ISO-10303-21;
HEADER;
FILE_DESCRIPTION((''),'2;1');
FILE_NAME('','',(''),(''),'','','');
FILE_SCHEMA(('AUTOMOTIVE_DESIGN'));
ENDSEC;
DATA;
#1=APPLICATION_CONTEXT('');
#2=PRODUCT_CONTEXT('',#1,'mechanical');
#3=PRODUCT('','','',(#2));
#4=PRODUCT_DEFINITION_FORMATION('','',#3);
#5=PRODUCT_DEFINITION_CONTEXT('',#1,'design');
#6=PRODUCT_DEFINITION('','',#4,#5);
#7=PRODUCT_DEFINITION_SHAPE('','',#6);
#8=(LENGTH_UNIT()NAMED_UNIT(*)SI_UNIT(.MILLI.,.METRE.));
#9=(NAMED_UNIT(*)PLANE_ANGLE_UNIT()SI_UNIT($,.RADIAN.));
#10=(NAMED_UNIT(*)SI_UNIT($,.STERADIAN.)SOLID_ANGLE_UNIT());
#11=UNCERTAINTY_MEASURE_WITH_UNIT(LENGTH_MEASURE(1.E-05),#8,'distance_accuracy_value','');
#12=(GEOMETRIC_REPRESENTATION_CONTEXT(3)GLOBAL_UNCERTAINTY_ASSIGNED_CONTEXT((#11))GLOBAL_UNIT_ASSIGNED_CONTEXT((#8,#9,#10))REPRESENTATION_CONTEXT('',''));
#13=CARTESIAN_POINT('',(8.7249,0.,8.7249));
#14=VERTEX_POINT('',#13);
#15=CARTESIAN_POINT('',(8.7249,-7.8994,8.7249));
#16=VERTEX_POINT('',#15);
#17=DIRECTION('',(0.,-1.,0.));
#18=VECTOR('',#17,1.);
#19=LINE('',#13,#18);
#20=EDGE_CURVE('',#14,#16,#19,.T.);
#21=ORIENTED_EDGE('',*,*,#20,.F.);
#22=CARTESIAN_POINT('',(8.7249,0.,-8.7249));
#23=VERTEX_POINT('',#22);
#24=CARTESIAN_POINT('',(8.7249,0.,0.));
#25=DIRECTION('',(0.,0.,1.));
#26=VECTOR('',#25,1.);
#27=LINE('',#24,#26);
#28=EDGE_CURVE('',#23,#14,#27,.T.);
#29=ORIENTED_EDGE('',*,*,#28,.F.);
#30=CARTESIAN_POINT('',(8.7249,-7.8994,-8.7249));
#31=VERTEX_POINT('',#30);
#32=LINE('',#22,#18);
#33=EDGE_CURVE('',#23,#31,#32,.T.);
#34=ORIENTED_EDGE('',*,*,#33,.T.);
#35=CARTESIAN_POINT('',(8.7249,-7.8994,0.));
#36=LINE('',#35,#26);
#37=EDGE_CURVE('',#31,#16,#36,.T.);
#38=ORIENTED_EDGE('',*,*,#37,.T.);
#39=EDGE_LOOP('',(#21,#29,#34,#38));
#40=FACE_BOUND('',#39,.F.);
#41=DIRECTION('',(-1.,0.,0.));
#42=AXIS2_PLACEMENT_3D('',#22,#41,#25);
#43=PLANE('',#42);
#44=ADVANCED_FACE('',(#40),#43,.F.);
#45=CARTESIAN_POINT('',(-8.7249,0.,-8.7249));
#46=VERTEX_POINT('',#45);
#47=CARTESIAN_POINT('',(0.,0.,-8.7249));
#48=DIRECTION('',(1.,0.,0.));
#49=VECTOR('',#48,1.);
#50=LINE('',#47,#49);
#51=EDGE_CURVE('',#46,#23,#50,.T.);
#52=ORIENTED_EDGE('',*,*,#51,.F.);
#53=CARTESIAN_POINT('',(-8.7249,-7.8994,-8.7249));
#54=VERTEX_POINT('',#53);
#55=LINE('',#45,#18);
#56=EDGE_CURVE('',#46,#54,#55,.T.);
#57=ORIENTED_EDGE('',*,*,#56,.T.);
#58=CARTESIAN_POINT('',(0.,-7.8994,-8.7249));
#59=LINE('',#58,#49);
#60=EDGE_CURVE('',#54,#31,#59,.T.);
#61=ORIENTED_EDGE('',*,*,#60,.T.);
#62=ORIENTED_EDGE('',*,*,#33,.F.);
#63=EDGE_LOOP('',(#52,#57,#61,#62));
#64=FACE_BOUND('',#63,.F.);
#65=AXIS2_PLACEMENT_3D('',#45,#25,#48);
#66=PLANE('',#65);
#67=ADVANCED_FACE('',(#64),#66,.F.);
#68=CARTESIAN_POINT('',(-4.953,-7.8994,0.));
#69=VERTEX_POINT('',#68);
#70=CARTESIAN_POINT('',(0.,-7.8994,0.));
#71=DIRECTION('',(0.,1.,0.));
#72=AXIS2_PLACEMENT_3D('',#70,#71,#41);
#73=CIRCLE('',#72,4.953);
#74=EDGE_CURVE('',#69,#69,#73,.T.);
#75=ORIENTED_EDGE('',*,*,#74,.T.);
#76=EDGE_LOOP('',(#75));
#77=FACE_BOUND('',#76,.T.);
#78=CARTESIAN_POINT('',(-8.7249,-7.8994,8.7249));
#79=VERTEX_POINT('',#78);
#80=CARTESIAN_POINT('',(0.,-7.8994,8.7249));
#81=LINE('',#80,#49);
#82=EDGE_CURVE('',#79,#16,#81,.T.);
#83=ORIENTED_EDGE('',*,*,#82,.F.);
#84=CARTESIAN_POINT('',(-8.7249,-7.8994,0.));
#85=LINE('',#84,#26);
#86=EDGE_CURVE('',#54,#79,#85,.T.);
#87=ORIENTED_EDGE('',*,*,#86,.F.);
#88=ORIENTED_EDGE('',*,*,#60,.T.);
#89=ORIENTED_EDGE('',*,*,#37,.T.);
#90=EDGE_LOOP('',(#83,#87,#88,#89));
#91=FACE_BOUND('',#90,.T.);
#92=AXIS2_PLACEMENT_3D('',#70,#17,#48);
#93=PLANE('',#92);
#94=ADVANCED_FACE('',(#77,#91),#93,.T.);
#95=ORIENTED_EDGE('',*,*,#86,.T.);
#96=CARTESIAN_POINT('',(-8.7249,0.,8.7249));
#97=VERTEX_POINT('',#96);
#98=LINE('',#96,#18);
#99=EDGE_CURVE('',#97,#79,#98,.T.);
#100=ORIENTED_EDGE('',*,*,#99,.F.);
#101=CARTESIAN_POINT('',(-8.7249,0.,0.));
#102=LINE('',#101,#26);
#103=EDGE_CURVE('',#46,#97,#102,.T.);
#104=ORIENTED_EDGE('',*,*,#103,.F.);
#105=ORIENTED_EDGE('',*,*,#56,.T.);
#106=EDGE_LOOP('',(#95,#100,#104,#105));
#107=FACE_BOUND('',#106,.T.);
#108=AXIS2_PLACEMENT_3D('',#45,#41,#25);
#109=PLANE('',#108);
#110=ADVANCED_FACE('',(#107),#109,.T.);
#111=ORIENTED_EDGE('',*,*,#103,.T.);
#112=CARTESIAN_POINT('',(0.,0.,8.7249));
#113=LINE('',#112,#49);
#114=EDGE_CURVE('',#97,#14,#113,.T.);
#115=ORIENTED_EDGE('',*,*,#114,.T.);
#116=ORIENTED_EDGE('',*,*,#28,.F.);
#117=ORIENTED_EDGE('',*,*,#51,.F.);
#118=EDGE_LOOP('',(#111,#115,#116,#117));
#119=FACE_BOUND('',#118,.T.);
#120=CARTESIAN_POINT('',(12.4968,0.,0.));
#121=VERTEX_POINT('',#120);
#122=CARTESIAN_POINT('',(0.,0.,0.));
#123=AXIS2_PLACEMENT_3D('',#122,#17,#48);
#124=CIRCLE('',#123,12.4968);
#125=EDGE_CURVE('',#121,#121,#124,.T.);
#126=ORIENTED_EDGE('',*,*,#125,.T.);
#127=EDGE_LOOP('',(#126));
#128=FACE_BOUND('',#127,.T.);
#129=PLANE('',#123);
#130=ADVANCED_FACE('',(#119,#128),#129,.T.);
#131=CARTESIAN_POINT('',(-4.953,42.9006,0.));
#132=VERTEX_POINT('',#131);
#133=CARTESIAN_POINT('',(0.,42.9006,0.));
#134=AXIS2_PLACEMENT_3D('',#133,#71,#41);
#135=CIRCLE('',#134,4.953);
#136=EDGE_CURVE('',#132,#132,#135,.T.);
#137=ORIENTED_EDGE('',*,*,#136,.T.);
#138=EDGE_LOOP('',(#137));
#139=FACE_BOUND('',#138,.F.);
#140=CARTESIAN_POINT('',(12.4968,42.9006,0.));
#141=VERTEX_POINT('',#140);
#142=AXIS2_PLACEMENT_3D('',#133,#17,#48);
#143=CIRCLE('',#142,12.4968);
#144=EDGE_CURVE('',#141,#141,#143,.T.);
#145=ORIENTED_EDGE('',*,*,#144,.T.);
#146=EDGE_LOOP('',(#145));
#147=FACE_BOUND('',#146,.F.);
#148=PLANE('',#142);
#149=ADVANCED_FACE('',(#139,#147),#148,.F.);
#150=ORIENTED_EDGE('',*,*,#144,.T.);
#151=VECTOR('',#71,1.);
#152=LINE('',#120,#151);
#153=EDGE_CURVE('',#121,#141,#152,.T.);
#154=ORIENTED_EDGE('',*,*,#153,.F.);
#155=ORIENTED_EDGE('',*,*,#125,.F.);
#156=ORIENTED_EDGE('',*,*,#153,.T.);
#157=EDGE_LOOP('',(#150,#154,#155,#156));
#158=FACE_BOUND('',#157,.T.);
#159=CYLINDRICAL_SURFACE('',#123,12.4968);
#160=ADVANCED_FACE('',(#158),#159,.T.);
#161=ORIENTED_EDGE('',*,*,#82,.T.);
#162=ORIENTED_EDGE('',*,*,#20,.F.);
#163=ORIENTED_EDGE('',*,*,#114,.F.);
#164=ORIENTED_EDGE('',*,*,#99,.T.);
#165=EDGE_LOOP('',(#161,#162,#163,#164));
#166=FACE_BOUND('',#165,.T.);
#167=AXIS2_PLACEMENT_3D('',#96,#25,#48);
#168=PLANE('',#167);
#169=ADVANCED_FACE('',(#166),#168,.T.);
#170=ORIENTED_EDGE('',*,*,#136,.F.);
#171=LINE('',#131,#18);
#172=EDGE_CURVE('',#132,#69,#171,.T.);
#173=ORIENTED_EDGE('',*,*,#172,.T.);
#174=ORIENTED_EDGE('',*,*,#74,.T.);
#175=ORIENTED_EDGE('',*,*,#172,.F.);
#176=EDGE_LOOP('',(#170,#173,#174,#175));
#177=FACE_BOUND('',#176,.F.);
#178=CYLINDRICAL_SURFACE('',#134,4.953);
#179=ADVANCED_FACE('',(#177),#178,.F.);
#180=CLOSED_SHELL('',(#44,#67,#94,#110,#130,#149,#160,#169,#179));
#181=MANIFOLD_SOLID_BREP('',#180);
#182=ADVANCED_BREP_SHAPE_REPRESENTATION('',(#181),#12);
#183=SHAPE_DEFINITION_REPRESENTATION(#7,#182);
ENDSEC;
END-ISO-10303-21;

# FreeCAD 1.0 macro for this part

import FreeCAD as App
import Part
import Sketcher
from FreeCAD import Vector
Q = App.Units.Quantity


def add_polygon(sketch, points):
    """Adds a closed chain of lines whose ends are joined by coincident constraints."""
    first, n = sketch.GeometryCount, len(points)
    for a, b in zip(points, points[1:] + points[:1]):
        sketch.addGeometry(Part.LineSegment(App.Vector(*a, 0), App.Vector(*b, 0)), False)
    for i in range(n):
        sketch.addConstraint(Sketcher.Constraint("Coincident", first + i, 2, first + (i + 1) % n, 1))

doc = App.newDocument("Part")
body = doc.addObject("PartDesign::Body", "Body")

# Sketch on XZ plane
sketch1 = doc.addObject("Sketcher::SketchObject", "Sketch")
body.addObject(sketch1)
sketch1.AttachmentSupport = (doc.XZ_Plane, [""])
sketch1.MapMode = "FlatFace"
sketch1.addGeometry(Part.Circle(Vector(0, 0, 0), Vector(0, 0, 1), 12.4968), False)
sketch1.addConstraint([
    Sketcher.Constraint("Coincident", 0, 3, -1, 1),
    Sketcher.Constraint("Diameter", 0, Q("0.984 in")),
])
pad1 = doc.addObject("PartDesign::Pad", "Pad")
body.addObject(pad1)
pad1.Profile = sketch1
pad1.Length = Q("1.689 in")
pad1.Reversed = True

# Sketch on XZ plane
sketch2 = doc.addObject("Sketcher::SketchObject", "Sketch001")
body.addObject(sketch2)
sketch2.AttachmentSupport = (doc.XZ_Plane, [""])
sketch2.MapMode = "FlatFace"
add_polygon(sketch2, [(-8.7249, 8.7249), (-8.7249, -8.7249), (8.7249, -8.7249), (8.7249, 8.7249)])  # lines 0-3
sketch2.addConstraint([
    Sketcher.Constraint("Vertical", 0),
    Sketcher.Constraint("Horizontal", 1),
    Sketcher.Constraint("Vertical", 2),
    Sketcher.Constraint("Horizontal", 3),
    Sketcher.Constraint("Symmetric", 0, 2, 2, 2, -1, 1),
    Sketcher.Constraint("Equal", 3, 0),
    Sketcher.Constraint("DistanceX", 1, 1, 1, 2, Q("0.687 in")),
])
pad2 = doc.addObject("PartDesign::Pad", "Pad001")
body.addObject(pad2)
pad2.Profile = sketch2
pad2.Length = Q("0.311 in")

# Sketch on XZ plane
sketch3 = doc.addObject("Sketcher::SketchObject", "Sketch002")
body.addObject(sketch3)
sketch3.AttachmentSupport = (doc.XZ_Plane, [""])
sketch3.MapMode = "FlatFace"
sketch3.AttachmentOffset = App.Placement(Vector(0, 0, -1.689 * 25.4), App.Rotation())
sketch3.addGeometry(Part.Circle(Vector(0, 0, 0), Vector(0, 0, 1), 4.953), False)
sketch3.addConstraint([
    Sketcher.Constraint("Coincident", 0, 3, -1, 1),
    Sketcher.Constraint("Diameter", 0, Q("0.39 in")),
])
pocket1 = doc.addObject("PartDesign::Pocket", "Pocket")
body.addObject(pocket1)
pocket1.Profile = sketch3
pocket1.Length = Q("3 in")
pocket1.Reversed = True

doc.recompute()
